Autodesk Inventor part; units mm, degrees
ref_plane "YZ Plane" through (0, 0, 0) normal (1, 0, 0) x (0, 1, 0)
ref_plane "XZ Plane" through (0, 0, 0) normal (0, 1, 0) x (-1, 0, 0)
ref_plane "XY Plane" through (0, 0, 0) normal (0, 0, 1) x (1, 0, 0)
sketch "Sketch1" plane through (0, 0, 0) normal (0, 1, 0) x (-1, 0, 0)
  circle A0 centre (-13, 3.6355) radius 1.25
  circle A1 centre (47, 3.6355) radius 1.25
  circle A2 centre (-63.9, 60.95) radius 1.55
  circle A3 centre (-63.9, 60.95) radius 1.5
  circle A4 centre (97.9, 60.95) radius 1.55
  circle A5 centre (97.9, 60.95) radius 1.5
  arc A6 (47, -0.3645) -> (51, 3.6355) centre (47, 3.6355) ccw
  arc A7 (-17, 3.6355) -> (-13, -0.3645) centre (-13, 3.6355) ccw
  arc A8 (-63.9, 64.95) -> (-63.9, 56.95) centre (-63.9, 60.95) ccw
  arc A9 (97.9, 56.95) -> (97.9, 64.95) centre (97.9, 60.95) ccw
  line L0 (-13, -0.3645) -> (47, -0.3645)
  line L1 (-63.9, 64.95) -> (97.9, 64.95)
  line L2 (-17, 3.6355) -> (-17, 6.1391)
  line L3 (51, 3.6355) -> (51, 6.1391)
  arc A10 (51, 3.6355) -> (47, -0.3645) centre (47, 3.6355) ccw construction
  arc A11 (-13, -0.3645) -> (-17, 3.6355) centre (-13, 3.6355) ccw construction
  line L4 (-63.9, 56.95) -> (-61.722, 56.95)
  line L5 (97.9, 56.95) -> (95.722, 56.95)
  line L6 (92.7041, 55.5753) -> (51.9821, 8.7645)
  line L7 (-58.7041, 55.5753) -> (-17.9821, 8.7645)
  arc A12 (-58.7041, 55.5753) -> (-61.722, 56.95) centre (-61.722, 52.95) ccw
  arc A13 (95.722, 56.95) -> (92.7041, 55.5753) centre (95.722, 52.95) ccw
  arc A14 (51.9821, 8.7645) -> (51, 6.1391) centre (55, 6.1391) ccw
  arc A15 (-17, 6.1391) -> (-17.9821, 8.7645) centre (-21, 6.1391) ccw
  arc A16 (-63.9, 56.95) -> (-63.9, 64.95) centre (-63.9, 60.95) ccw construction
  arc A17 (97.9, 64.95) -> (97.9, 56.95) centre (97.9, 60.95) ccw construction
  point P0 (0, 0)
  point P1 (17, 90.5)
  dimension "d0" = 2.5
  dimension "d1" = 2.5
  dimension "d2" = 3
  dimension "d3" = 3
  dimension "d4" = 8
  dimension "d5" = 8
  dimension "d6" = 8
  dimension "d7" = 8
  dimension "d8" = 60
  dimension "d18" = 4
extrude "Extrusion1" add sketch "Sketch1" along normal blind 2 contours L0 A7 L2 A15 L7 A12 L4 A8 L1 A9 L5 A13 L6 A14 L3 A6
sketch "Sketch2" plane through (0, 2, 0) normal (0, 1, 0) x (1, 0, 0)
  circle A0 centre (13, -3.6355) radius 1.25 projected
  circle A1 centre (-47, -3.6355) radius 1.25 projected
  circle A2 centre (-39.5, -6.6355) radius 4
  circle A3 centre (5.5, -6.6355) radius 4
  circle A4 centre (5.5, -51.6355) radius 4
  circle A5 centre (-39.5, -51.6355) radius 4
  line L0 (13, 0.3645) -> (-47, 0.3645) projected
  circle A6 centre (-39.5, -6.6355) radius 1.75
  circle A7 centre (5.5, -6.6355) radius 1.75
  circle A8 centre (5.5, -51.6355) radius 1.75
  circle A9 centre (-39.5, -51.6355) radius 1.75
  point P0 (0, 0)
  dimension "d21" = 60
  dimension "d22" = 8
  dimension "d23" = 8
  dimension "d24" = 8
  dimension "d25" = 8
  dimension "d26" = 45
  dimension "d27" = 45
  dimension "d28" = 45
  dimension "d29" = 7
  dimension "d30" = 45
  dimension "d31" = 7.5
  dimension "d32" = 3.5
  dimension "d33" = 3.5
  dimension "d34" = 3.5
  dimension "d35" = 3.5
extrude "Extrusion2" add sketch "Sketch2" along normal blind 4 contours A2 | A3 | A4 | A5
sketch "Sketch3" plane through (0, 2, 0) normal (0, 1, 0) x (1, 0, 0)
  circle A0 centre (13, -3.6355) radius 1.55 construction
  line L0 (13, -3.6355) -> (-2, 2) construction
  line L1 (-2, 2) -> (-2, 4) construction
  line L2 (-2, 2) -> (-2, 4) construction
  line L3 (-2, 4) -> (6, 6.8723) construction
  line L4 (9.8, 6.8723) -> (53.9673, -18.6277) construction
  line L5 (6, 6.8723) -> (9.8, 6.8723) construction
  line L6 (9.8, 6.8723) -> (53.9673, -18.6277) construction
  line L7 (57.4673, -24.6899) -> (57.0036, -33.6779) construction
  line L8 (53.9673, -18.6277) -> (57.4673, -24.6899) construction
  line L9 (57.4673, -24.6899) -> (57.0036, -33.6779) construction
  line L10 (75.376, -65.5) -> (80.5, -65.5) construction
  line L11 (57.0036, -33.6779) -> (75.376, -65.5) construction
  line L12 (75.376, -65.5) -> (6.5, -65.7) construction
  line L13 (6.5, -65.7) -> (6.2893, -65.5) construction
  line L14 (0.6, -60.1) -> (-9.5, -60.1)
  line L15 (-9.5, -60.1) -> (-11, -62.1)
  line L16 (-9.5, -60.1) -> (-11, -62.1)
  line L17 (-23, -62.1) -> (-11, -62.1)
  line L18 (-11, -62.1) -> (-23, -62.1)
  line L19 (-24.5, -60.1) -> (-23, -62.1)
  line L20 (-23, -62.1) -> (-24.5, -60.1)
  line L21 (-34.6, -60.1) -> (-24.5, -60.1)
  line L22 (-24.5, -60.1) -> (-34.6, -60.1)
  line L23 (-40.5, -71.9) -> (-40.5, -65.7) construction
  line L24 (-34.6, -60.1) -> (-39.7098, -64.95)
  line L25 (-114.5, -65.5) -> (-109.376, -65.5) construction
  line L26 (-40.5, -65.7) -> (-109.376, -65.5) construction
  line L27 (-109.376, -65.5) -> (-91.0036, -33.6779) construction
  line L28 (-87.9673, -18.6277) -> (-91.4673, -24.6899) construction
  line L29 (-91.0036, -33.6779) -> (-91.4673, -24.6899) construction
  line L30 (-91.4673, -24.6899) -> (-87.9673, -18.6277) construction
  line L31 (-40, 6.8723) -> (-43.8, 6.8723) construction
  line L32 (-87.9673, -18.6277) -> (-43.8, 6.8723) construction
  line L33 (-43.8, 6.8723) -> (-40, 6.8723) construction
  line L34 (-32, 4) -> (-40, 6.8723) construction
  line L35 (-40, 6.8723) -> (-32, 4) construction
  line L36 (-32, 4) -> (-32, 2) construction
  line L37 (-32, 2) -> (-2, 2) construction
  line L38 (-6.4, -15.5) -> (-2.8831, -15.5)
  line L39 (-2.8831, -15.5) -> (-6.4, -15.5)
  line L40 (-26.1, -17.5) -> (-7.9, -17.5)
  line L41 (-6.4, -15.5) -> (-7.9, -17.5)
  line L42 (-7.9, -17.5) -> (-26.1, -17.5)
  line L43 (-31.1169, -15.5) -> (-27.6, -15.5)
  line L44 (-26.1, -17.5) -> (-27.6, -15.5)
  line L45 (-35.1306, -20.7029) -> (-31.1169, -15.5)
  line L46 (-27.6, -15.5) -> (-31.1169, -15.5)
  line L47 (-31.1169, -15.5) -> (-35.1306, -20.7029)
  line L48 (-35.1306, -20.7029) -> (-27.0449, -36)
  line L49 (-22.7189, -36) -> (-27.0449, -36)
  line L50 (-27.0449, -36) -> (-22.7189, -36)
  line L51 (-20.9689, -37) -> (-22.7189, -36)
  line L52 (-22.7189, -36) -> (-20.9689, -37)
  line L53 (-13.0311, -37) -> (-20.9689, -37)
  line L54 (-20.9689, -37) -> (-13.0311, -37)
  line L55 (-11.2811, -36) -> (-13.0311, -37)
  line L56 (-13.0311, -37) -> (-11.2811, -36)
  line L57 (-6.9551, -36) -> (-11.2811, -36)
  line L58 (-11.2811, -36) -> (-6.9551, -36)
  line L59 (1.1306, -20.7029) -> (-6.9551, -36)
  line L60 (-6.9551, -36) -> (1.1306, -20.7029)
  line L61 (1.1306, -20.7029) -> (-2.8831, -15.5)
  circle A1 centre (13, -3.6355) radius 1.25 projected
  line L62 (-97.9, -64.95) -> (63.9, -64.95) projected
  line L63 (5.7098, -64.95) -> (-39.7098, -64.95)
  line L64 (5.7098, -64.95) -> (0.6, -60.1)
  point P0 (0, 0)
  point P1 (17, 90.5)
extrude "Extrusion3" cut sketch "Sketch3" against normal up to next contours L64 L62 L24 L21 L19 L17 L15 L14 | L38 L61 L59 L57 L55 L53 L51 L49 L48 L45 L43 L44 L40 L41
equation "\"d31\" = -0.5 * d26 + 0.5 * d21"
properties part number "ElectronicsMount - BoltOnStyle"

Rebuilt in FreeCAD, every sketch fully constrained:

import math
import FreeCAD as App
import Part
import Sketcher

V = App.Vector
Q = App.Units.Quantity


def add_polygon(sketch, points):
    """Adds a closed chain of lines whose ends are joined by coincident constraints."""
    first, n = sketch.GeometryCount, len(points)
    for a, b in zip(points, points[1:] + points[:1]):
        sketch.addGeometry(Part.LineSegment(App.Vector(*a, 0), App.Vector(*b, 0)), False)
    for i in range(n):
        sketch.addConstraint(Sketcher.Constraint("Coincident", first + i, 2, first + (i + 1) % n, 1))

doc = App.newDocument("Part")
body = doc.addObject("PartDesign::Body", "Body")

# Sketch on XZ plane
sketch1 = body.newObject("Sketcher::SketchObject", "Sketch")
sketch1.AttachmentSupport = (doc.getObject("XZ_Plane"), [""])
sketch1.MapMode = "FlatFace"
sketch1.addGeometry(Part.LineSegment(V(13, -0.3645, 0), V(-47, -0.3645, 0)), False)
sketch1.addGeometry(Part.ArcOfCircle(Part.Circle(V(-47, 3.6355, 0), V(0, 0, 1), 4), math.radians(180), math.radians(270)), False)
sketch1.addGeometry(Part.LineSegment(V(-51, 3.6355, 0), V(-51, 6.1391, 0)), False)
sketch1.addGeometry(Part.ArcOfCircle(Part.Circle(V(-55, 6.1391, 0), V(0, 0, 1), 4.000056), math.radians(0), math.radians(41.0214)), False)
sketch1.addGeometry(Part.LineSegment(V(-51.9821, 8.7645, 0), V(-92.7041, 55.5753, 0)), False)
sketch1.addGeometry(Part.ArcOfCircle(Part.Circle(V(-95.722, 52.95, 0), V(0, 0, 1), 4), math.radians(41.020319), math.radians(90)), False)
sketch1.addGeometry(Part.LineSegment(V(-95.722, 56.95, 0), V(-97.9, 56.95, 0)), False)
sketch1.addGeometry(Part.ArcOfCircle(Part.Circle(V(-97.9, 60.95, 0), V(0, 0, 1), 4), math.radians(90), math.radians(270)), False)
sketch1.addGeometry(Part.LineSegment(V(-97.9, 64.95, 0), V(63.9, 64.95, 0)), False)
sketch1.addGeometry(Part.ArcOfCircle(Part.Circle(V(63.9, 60.95, 0), V(0, 0, 1), 4), math.radians(-90), math.radians(90)), False)
sketch1.addGeometry(Part.LineSegment(V(63.9, 56.95, 0), V(61.722, 56.95, 0)), False)
sketch1.addGeometry(Part.ArcOfCircle(Part.Circle(V(61.722, 52.95, 0), V(0, 0, 1), 3.99999), math.radians(90), math.radians(138.979681)), False)
sketch1.addGeometry(Part.LineSegment(V(58.7041, 55.5753, 0), V(17.9821, 8.7645, 0)), False)
sketch1.addGeometry(Part.ArcOfCircle(Part.Circle(V(21, 6.1391, 0), V(0, 0, 1), 4), math.radians(138.9786), math.radians(180)), False)
sketch1.addGeometry(Part.LineSegment(V(17, 6.1391, 0), V(17, 3.6355, 0)), False)
sketch1.addGeometry(Part.ArcOfCircle(Part.Circle(V(13, 3.6355, 0), V(0, 0, 1), 4), math.radians(-90), math.radians(0)), False)
sketch1.addGeometry(Part.Circle(V(13, 3.6355, 0), V(0, 0, 1), 1.25), False)
sketch1.addGeometry(Part.Circle(V(-47, 3.6355, 0), V(0, 0, 1), 1.25), False)
sketch1.addGeometry(Part.Circle(V(63.9, 60.95, 0), V(0, 0, 1), 1.55), False)
sketch1.addGeometry(Part.Circle(V(-97.9, 60.95, 0), V(0, 0, 1), 1.55), False)
sketch1.addConstraint(Sketcher.Constraint("Tangent", 0, 2, 1, 2))
sketch1.addConstraint(Sketcher.Constraint("Tangent", 1, 1, 2, 1))
sketch1.addConstraint(Sketcher.Constraint("Tangent", 2, 2, 3, 1))
sketch1.addConstraint(Sketcher.Constraint("Tangent", 3, 2, 4, 1))
sketch1.addConstraint(Sketcher.Constraint("Tangent", 4, 2, 5, 1))
sketch1.addConstraint(Sketcher.Constraint("Tangent", 5, 2, 6, 1))
sketch1.addConstraint(Sketcher.Constraint("Tangent", 6, 2, 7, 2))
sketch1.addConstraint(Sketcher.Constraint("Tangent", 7, 1, 8, 1))
sketch1.addConstraint(Sketcher.Constraint("Tangent", 8, 2, 9, 2))
sketch1.addConstraint(Sketcher.Constraint("Tangent", 9, 1, 10, 1))
sketch1.addConstraint(Sketcher.Constraint("Tangent", 10, 2, 11, 1))
sketch1.addConstraint(Sketcher.Constraint("Tangent", 11, 2, 12, 1))
sketch1.addConstraint(Sketcher.Constraint("Tangent", 12, 2, 13, 1))
sketch1.addConstraint(Sketcher.Constraint("Tangent", 13, 2, 14, 1))
sketch1.addConstraint(Sketcher.Constraint("Tangent", 14, 2, 15, 2))
sketch1.addConstraint(Sketcher.Constraint("Tangent", 15, 1, 0, 1))
sketch1.addConstraint(Sketcher.Constraint("Horizontal", 0))
sketch1.addConstraint(Sketcher.Constraint("Vertical", 2))
sketch1.addConstraint(Sketcher.Constraint("Horizontal", 6))
sketch1.addConstraint(Sketcher.Constraint("Horizontal", 8))
sketch1.addConstraint(Sketcher.Constraint("Horizontal", 10))
sketch1.addConstraint(Sketcher.Constraint("Vertical", 14))
sketch1.addConstraint(Sketcher.Constraint("Coincident", 16, 3, 15, 3))
sketch1.addConstraint(Sketcher.Constraint("Coincident", 17, 3, 1, 3))
sketch1.addConstraint(Sketcher.Constraint("Coincident", 18, 3, 9, 3))
sketch1.addConstraint(Sketcher.Constraint("Coincident", 19, 3, 7, 3))
sketch1.addConstraint(Sketcher.Constraint("Equal", 1, 3))
sketch1.addConstraint(Sketcher.Constraint("Equal", 3, 5))
sketch1.addConstraint(Sketcher.Constraint("Equal", 5, 7))
sketch1.addConstraint(Sketcher.Constraint("Equal", 7, 9))
sketch1.addConstraint(Sketcher.Constraint("Equal", 9, 11))
sketch1.addConstraint(Sketcher.Constraint("Equal", 11, 13))
sketch1.addConstraint(Sketcher.Constraint("Equal", 13, 15))
sketch1.addConstraint(Sketcher.Constraint("Equal", 16, 17))
sketch1.addConstraint(Sketcher.Constraint("Equal", 18, 19))
sketch1.addConstraint(Sketcher.Constraint("Horizontal", 3, 3, 13, 3))
sketch1.addConstraint(Sketcher.Constraint("Horizontal", 4, 2, 11, 2))
sketch1.addConstraint(Sketcher.Constraint("Equal", 6, 10))
sketch1.addConstraint(Sketcher.Constraint("Radius", 1, 4.0))
sketch1.addConstraint(Sketcher.Constraint("Diameter", 16, 2.5))
sketch1.addConstraint(Sketcher.Constraint("DistanceX", 0, 2, 0, 1, 60.0))
sketch1.addConstraint(Sketcher.Constraint("Diameter", 18, 3.1))
sketch1.addConstraint(Sketcher.Constraint("DistanceX", 8, 1, 8, 2, 161.8))
sketch1.addConstraint(Sketcher.Constraint("DistanceX", 1, 3, -1, 1, 47.0))
sketch1.addConstraint(Sketcher.Constraint("Angle", 4, Q("131.021 deg")))
sketch1.addConstraint(Sketcher.Constraint("DistanceX", 6, 2, 6, 1, 2.178))
sketch1.addConstraint(Sketcher.Constraint("DistanceY", -1, 1, 5, 3, 52.95))
sketch1.addConstraint(Sketcher.Constraint("DistanceY", 2, 1, 2, 2, 2.5036))
pad1 = body.newObject("PartDesign::Pad", "Pad")
pad1.Profile = sketch1
pad1.Length = 2
pad1.Reversed = True

# Sketch on XZ plane
sketch2 = body.newObject("Sketcher::SketchObject", "Sketch001")
sketch2.AttachmentSupport = (doc.getObject("XZ_Plane"), [""])
sketch2.MapMode = "FlatFace"
sketch2.AttachmentOffset = App.Placement(V(0, 0, -2), App.Rotation())
sketch2.addGeometry(Part.Circle(V(-39.5, 6.6355, 0), V(0, 0, 1), 4), False)
sketch2.addGeometry(Part.Circle(V(-39.5, 6.6355, 0), V(0, 0, 1), 1.75), False)
sketch2.addGeometry(Part.Circle(V(5.5, 6.6355, 0), V(0, 0, 1), 4), False)
sketch2.addGeometry(Part.Circle(V(5.5, 6.6355, 0), V(0, 0, 1), 1.75), False)
sketch2.addGeometry(Part.Circle(V(5.5, 51.6355, 0), V(0, 0, 1), 4), False)
sketch2.addGeometry(Part.Circle(V(5.5, 51.6355, 0), V(0, 0, 1), 1.75), False)
sketch2.addGeometry(Part.Circle(V(-39.5, 51.6355, 0), V(0, 0, 1), 4), False)
sketch2.addGeometry(Part.Circle(V(-39.5, 51.6355, 0), V(0, 0, 1), 1.75), False)
sketch2.addConstraint(Sketcher.Constraint("Coincident", 1, 3, 0, 3))
sketch2.addConstraint(Sketcher.Constraint("Coincident", 3, 3, 2, 3))
sketch2.addConstraint(Sketcher.Constraint("Coincident", 5, 3, 4, 3))
sketch2.addConstraint(Sketcher.Constraint("Coincident", 7, 3, 6, 3))
sketch2.addConstraint(Sketcher.Constraint("Equal", 0, 2))
sketch2.addConstraint(Sketcher.Constraint("Equal", 1, 3))
sketch2.addConstraint(Sketcher.Constraint("Equal", 2, 4))
sketch2.addConstraint(Sketcher.Constraint("Equal", 3, 5))
sketch2.addConstraint(Sketcher.Constraint("Equal", 4, 6))
sketch2.addConstraint(Sketcher.Constraint("Equal", 5, 7))
sketch2.addConstraint(Sketcher.Constraint("Horizontal", 1, 3, 2, 3))
sketch2.addConstraint(Sketcher.Constraint("Horizontal", 5, 3, 6, 3))
sketch2.addConstraint(Sketcher.Constraint("Vertical", 3, 3, 4, 3))
sketch2.addConstraint(Sketcher.Constraint("Vertical", 1, 3, 6, 3))
sketch2.addConstraint(Sketcher.Constraint("Diameter", 0, 8.0))
sketch2.addConstraint(Sketcher.Constraint("Diameter", 1, 3.5))
sketch2.addConstraint(Sketcher.Constraint("DistanceX", 0, 3, 2, 3, 45.0))
sketch2.addConstraint(Sketcher.Constraint("DistanceY", 2, 3, 4, 3, 45.0))
sketch2.addConstraint(Sketcher.Constraint("DistanceX", 0, 3, -1, 1, 39.5))
sketch2.addConstraint(Sketcher.Constraint("DistanceY", -1, 1, 0, 3, 6.6355))
pad2 = body.newObject("PartDesign::Pad", "Pad001")
pad2.Profile = sketch2
pad2.Length = 4
pad2.Reversed = True

# Sketch on XZ plane
sketch3 = body.newObject("Sketcher::SketchObject", "Sketch002")
sketch3.AttachmentSupport = (doc.getObject("XZ_Plane"), [""])
sketch3.MapMode = "FlatFace"
sketch3.AttachmentOffset = App.Placement(V(0, 0, -2), App.Rotation())
add_polygon(sketch3, [(5.7098, 64.95), (0.6, 60.1), (-9.5, 60.1), (-11, 62.1), (-23, 62.1), (-24.5, 60.1), (-34.6, 60.1), (-39.7098, 64.95)])  # lines 0-7
add_polygon(sketch3, [(-2.8831, 15.5), (-6.4, 15.5), (-7.9, 17.5), (-26.1, 17.5), (-27.6, 15.5), (-31.1169, 15.5), (-35.1306, 20.7029), (-27.0449, 36), (-22.7189, 36), (-20.9689, 37), (-13.0311, 37), (-11.2811, 36), (-6.9551, 36), (1.1306, 20.7029)])  # lines 8-21
sketch3.addConstraint(Sketcher.Constraint("Horizontal", 1))
sketch3.addConstraint(Sketcher.Constraint("Horizontal", 3))
sketch3.addConstraint(Sketcher.Constraint("Horizontal", 5))
sketch3.addConstraint(Sketcher.Constraint("Horizontal", 7))
sketch3.addConstraint(Sketcher.Constraint("Horizontal", 8))
sketch3.addConstraint(Sketcher.Constraint("Horizontal", 10))
sketch3.addConstraint(Sketcher.Constraint("Horizontal", 12))
sketch3.addConstraint(Sketcher.Constraint("Horizontal", 15))
sketch3.addConstraint(Sketcher.Constraint("Horizontal", 17))
sketch3.addConstraint(Sketcher.Constraint("Horizontal", 19))
sketch3.addConstraint(Sketcher.Constraint("Parallel", 2, 9))
sketch3.addConstraint(Sketcher.Constraint("Parallel", 4, 11))
sketch3.addConstraint(Sketcher.Constraint("Horizontal", 1, 2, 4, 2))
sketch3.addConstraint(Sketcher.Constraint("Horizontal", 8, 2, 11, 2))
sketch3.addConstraint(Sketcher.Constraint("Horizontal", 15, 2, 18, 2))
sketch3.addConstraint(Sketcher.Constraint("Horizontal", 13, 2, 20, 2))
sketch3.addConstraint(Sketcher.Constraint("Equal", 1, 5))
sketch3.addConstraint(Sketcher.Constraint("Equal", 8, 12))
sketch3.addConstraint(Sketcher.Constraint("Equal", 15, 19))
sketch3.addConstraint(Sketcher.Constraint("Equal", 2, 4))
sketch3.addConstraint(Sketcher.Constraint("Equal", 0, 6))
sketch3.addConstraint(Sketcher.Constraint("Equal", 4, 9))
sketch3.addConstraint(Sketcher.Constraint("Equal", 16, 18))
sketch3.addConstraint(Sketcher.Constraint("Equal", 14, 20))
sketch3.addConstraint(Sketcher.Constraint("Equal", 13, 21))
sketch3.addConstraint(Sketcher.Constraint("DistanceX", 3, 2, 3, 1, 12.0))
sketch3.addConstraint(Sketcher.Constraint("DistanceX", 1, 2, 1, 1, 10.1))
sketch3.addConstraint(Sketcher.Constraint("DistanceX", 10, 2, 10, 1, 18.2))
sketch3.addConstraint(Sketcher.Constraint("DistanceX", 2, 2, -1, 1, 11.0))
sketch3.addConstraint(Sketcher.Constraint("DistanceY", -1, 1, 14, 2, 36.0))
sketch3.addConstraint(Sketcher.Constraint("DistanceY", -1, 1, 16, 2, 37.0))
sketch3.addConstraint(Sketcher.Constraint("DistanceY", 1, 2, 2, 2, 2.0))
sketch3.addConstraint(Sketcher.Constraint("DistanceX", 4, 2, 1, 2, 15.0))
sketch3.addConstraint(Sketcher.Constraint("DistanceX", 8, 2, 0, 2, 7.0))
sketch3.addConstraint(Sketcher.Constraint("DistanceY", -1, 1, 0, 2, 60.1))
sketch3.addConstraint(Sketcher.Constraint("DistanceY", -1, 1, 8, 2, 15.5))
sketch3.addConstraint(Sketcher.Constraint("Angle", 14, Q("62.14 deg")))
sketch3.addConstraint(Sketcher.Constraint("DistanceX", 8, 2, 8, 1, 3.517))
sketch3.addConstraint(Sketcher.Constraint("DistanceX", 15, 1, 15, 2, 4.326))
sketch3.addConstraint(Sketcher.Constraint("DistanceY", -1, 1, 6, 2, 64.95))
sketch3.addConstraint(Sketcher.Constraint("DistanceX", 15, 2, 16, 2, 1.75))
sketch3.addConstraint(Sketcher.Constraint("Distance", 0, 7.045))
sketch3.addConstraint(Sketcher.Constraint("DistanceX", 17, 1, 17, 2, 7.9378))
sketch3.addConstraint(Sketcher.Constraint("DistanceY", -1, 1, 13, 2, 20.703))
pocket1 = body.newObject("PartDesign::Pocket", "Pocket")
pocket1.Profile = sketch3
pocket1.Type = "UpToFirst"
pocket1.Reversed = True

doc.recompute()
